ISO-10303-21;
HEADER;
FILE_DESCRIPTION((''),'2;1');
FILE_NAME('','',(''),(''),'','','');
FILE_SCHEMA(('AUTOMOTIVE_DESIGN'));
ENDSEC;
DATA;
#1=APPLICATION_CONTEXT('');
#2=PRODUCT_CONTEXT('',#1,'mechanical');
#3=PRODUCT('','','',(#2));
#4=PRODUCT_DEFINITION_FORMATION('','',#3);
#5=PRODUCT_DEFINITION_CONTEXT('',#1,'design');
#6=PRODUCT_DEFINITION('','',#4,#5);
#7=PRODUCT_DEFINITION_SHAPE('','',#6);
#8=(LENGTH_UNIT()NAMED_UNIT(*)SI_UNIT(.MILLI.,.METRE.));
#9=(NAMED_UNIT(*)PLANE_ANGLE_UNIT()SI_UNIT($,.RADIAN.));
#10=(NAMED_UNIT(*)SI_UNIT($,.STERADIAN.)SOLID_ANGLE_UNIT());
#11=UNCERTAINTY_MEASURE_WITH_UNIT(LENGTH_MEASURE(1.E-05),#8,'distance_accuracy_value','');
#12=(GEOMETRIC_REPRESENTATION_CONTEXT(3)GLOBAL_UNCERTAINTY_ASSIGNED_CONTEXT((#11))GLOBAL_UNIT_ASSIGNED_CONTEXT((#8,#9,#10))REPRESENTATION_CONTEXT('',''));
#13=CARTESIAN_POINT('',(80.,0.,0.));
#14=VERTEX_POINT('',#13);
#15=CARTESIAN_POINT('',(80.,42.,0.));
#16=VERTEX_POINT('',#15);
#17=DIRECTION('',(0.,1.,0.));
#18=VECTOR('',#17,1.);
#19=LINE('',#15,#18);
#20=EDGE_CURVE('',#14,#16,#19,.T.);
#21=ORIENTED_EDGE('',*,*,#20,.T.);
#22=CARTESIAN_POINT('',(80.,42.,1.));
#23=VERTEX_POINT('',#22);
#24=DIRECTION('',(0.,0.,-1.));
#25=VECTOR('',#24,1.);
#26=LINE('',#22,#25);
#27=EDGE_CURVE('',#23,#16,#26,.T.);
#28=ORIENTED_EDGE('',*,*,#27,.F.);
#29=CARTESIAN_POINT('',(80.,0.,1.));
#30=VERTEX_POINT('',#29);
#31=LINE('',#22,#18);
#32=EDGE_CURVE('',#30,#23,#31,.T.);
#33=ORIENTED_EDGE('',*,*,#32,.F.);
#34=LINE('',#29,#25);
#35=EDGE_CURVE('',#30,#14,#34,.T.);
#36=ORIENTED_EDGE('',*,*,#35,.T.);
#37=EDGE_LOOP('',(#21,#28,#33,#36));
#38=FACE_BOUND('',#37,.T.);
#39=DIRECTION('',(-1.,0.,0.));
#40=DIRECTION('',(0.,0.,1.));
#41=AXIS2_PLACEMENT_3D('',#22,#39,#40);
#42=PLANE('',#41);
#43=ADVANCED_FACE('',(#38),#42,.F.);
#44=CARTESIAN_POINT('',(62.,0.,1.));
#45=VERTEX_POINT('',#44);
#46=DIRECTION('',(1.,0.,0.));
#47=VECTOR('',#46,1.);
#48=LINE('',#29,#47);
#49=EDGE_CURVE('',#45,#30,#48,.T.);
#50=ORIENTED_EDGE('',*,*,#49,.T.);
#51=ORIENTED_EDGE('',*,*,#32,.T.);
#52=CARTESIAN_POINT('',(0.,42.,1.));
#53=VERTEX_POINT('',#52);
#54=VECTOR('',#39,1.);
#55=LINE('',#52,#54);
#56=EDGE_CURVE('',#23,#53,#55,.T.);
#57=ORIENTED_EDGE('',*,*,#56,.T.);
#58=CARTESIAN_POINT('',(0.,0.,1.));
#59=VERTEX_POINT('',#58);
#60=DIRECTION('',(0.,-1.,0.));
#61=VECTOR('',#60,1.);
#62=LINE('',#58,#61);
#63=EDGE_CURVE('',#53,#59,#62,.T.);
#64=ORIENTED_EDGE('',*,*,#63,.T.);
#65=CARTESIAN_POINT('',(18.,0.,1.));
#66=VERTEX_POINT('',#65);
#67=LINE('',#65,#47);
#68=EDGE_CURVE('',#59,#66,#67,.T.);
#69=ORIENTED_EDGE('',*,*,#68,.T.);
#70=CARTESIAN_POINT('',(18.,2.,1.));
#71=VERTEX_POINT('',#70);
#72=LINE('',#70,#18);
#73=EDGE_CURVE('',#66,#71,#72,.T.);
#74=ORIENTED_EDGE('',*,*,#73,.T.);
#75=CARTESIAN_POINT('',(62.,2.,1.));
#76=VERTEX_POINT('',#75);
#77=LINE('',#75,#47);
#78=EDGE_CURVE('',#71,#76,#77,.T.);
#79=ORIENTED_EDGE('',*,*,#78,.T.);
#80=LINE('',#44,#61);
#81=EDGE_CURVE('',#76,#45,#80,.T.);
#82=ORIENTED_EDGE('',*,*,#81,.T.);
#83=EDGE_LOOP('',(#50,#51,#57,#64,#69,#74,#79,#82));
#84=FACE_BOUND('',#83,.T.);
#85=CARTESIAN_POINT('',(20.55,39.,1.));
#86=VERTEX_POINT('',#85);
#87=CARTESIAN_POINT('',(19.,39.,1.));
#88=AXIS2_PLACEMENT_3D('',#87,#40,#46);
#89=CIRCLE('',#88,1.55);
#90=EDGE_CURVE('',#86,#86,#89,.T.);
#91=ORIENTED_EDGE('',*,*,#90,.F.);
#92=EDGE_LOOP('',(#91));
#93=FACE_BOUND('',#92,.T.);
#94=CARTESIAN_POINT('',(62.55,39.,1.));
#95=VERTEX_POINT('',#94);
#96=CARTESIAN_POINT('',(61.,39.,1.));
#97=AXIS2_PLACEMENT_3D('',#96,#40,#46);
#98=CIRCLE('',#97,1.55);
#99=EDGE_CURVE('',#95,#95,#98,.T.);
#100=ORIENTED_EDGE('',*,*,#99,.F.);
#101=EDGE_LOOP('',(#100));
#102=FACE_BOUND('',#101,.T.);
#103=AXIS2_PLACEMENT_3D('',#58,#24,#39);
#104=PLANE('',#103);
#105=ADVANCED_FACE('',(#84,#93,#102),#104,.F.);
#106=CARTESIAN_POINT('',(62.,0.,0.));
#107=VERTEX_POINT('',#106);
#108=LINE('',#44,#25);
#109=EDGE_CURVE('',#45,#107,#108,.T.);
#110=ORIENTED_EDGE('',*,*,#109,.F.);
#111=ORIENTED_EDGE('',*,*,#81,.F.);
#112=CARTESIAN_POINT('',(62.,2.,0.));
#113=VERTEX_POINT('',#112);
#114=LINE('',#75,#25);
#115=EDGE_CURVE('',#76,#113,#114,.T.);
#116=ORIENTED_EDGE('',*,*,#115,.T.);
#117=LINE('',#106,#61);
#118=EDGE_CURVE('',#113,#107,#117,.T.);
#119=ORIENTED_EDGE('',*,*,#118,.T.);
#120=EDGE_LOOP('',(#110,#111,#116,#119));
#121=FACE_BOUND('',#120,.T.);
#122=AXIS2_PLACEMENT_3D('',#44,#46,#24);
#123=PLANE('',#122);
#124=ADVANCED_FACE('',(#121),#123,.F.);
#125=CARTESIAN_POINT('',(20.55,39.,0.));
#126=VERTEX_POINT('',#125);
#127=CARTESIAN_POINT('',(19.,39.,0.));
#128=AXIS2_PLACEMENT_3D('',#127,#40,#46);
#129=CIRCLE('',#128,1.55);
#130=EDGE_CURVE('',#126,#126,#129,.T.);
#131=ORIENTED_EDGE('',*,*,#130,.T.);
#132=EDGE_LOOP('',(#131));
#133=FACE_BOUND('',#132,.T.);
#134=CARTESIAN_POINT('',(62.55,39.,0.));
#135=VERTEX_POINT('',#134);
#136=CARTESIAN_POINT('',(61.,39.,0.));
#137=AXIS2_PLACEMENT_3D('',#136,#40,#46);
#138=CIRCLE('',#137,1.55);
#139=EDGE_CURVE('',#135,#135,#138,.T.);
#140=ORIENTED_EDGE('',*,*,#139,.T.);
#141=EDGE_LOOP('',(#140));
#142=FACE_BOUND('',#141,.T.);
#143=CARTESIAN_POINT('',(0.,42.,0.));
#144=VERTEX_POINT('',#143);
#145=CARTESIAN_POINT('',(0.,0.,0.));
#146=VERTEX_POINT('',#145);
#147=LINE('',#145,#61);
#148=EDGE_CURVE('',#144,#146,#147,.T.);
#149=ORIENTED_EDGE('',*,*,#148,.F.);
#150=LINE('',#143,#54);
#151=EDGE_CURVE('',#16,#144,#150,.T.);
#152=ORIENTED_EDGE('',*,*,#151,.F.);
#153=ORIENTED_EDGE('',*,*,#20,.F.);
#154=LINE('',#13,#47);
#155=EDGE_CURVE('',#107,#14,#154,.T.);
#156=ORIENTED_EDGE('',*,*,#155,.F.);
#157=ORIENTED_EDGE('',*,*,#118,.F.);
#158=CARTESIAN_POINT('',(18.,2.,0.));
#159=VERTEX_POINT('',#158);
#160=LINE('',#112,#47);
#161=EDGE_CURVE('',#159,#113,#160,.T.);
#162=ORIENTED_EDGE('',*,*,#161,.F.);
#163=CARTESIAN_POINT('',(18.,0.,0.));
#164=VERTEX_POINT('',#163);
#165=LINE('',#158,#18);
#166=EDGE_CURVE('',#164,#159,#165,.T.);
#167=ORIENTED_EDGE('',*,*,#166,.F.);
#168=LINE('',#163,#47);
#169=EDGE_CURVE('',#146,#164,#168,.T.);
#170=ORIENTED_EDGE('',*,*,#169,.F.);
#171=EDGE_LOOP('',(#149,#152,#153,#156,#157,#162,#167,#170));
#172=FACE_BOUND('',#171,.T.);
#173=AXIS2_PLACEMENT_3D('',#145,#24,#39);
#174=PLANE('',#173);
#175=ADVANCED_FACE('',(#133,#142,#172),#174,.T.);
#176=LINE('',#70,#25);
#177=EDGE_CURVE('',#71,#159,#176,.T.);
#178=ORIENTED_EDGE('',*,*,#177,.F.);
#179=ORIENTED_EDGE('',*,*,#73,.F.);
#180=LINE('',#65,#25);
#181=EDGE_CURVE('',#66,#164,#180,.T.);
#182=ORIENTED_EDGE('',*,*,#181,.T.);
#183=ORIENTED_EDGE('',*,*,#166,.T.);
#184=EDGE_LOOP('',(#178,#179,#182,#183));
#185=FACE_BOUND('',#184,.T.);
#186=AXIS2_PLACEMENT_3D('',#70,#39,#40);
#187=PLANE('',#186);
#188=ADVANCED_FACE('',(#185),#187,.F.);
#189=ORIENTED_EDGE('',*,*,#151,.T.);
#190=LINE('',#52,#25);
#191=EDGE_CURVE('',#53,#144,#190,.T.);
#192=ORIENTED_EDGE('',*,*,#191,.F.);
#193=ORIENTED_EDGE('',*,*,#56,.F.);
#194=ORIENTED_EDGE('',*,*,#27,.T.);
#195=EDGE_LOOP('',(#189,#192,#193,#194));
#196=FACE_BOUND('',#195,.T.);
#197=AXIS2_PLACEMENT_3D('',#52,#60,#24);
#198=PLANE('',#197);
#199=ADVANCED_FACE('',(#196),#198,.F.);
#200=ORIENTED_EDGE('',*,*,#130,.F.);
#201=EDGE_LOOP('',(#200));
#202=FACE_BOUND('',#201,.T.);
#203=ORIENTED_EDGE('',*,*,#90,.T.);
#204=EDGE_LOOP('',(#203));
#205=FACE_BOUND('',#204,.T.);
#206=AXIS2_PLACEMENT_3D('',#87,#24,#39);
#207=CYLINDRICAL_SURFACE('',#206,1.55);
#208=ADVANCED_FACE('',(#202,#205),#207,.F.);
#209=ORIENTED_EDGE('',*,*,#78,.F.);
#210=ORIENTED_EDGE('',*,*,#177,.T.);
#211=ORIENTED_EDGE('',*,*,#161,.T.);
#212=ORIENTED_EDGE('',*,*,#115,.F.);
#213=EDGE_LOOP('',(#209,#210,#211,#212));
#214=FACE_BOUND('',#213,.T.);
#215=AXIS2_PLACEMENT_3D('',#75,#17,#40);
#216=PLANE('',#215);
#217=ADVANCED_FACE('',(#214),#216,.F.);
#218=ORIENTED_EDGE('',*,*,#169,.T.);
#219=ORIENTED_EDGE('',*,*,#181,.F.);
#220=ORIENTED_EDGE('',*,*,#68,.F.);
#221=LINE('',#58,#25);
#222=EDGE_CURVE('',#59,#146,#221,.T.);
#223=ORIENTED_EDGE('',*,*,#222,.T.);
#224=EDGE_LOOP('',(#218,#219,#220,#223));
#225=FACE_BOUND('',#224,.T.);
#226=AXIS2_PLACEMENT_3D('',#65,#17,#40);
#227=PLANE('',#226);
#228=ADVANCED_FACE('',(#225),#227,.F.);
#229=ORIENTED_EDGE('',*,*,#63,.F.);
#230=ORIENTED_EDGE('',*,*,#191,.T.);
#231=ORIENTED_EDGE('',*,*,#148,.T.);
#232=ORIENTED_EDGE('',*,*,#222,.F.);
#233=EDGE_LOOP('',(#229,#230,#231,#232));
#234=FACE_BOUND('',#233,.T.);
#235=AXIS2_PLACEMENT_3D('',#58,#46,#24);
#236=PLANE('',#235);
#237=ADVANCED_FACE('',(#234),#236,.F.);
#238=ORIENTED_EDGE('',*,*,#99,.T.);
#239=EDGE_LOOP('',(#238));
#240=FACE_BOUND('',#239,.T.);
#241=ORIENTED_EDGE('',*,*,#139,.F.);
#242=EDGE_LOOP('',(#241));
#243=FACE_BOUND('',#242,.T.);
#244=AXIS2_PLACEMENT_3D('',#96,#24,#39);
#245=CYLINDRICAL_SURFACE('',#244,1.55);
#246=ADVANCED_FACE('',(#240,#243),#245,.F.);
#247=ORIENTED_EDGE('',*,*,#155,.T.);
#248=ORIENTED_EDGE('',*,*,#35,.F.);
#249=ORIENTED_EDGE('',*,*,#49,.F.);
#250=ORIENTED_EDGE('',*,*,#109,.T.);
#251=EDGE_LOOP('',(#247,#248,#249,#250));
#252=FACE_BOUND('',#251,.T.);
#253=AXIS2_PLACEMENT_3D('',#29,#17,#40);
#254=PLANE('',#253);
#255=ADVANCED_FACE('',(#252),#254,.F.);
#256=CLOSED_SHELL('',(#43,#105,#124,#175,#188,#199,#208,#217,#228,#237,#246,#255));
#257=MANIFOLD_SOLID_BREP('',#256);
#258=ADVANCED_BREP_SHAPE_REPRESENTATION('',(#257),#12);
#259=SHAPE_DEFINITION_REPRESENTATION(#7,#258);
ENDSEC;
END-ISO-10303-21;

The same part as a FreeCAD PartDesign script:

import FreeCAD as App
import Part
import Sketcher
from FreeCAD import Vector
Q = App.Units.Quantity


def add_polygon(sketch, points):
    """Adds a closed chain of lines whose ends are joined by coincident constraints."""
    first, n = sketch.GeometryCount, len(points)
    for a, b in zip(points, points[1:] + points[:1]):
        sketch.addGeometry(Part.LineSegment(App.Vector(*a, 0), App.Vector(*b, 0)), False)
    for i in range(n):
        sketch.addConstraint(Sketcher.Constraint("Coincident", first + i, 2, first + (i + 1) % n, 1))

doc = App.newDocument("Part")
body = doc.addObject("PartDesign::Body", "Body")

# Sketch on XY plane
sketch1 = doc.addObject("Sketcher::SketchObject", "Sketch")
body.addObject(sketch1)
sketch1.AttachmentSupport = (doc.XY_Plane, [""])
sketch1.MapMode = "FlatFace"
add_polygon(sketch1, [(0, 42), (0, 0), (18, 0), (18, 2), (62, 2), (62, 0), (80, 0), (80, 42)])  # lines 0-7
sketch1.addGeometry(Part.Circle(Vector(61, 39, 0), Vector(0, 0, 1), 1.6), False)  # 8
sketch1.addGeometry(Part.Circle(Vector(19, 39, 0), Vector(0, 0, 1), 1.6), False)  # 9
sketch1.addConstraint([
    Sketcher.Constraint("Vertical", 0),
    Sketcher.Constraint("Horizontal", 1),
    Sketcher.Constraint("Vertical", 2),
    Sketcher.Constraint("Horizontal", 3),
    Sketcher.Constraint("Vertical", 4),
    Sketcher.Constraint("Horizontal", 5),
    Sketcher.Constraint("Vertical", 6),
    Sketcher.Constraint("Horizontal", 7),
    Sketcher.Constraint("Coincident", 0, 2, -1, 1),
    Sketcher.Constraint("Equal", 8, 9),
    Sketcher.Constraint("PointOnObject", 4, 2, -1),
    Sketcher.Constraint("Horizontal", 8, 3, 9, 3),
    Sketcher.Constraint("Equal", 1, 5),
    Sketcher.Constraint("Diameter", 8, Q("3.1 mm")),
    Sketcher.Constraint("DistanceX", 1, 1, 1, 2, Q("18 mm")),
    Sketcher.Constraint("DistanceX", 3, 1, 3, 2, Q("44 mm")),
    Sketcher.Constraint("DistanceY", 0, 2, 0, 1, Q("42 mm")),
    Sketcher.Constraint("DistanceY", 2, 1, 2, 2, Q("2 mm")),
    Sketcher.Constraint("DistanceX", -1, 1, 8, 3, Q("61 mm")),
    Sketcher.Constraint("DistanceY", -1, 1, 8, 3, Q("39 mm")),
    Sketcher.Constraint("DistanceX", -1, 1, 9, 3, Q("19 mm")),
])
pad1 = doc.addObject("PartDesign::Pad", "Pad")
body.addObject(pad1)
pad1.Profile = sketch1
pad1.Length = 1

doc.recompute()
